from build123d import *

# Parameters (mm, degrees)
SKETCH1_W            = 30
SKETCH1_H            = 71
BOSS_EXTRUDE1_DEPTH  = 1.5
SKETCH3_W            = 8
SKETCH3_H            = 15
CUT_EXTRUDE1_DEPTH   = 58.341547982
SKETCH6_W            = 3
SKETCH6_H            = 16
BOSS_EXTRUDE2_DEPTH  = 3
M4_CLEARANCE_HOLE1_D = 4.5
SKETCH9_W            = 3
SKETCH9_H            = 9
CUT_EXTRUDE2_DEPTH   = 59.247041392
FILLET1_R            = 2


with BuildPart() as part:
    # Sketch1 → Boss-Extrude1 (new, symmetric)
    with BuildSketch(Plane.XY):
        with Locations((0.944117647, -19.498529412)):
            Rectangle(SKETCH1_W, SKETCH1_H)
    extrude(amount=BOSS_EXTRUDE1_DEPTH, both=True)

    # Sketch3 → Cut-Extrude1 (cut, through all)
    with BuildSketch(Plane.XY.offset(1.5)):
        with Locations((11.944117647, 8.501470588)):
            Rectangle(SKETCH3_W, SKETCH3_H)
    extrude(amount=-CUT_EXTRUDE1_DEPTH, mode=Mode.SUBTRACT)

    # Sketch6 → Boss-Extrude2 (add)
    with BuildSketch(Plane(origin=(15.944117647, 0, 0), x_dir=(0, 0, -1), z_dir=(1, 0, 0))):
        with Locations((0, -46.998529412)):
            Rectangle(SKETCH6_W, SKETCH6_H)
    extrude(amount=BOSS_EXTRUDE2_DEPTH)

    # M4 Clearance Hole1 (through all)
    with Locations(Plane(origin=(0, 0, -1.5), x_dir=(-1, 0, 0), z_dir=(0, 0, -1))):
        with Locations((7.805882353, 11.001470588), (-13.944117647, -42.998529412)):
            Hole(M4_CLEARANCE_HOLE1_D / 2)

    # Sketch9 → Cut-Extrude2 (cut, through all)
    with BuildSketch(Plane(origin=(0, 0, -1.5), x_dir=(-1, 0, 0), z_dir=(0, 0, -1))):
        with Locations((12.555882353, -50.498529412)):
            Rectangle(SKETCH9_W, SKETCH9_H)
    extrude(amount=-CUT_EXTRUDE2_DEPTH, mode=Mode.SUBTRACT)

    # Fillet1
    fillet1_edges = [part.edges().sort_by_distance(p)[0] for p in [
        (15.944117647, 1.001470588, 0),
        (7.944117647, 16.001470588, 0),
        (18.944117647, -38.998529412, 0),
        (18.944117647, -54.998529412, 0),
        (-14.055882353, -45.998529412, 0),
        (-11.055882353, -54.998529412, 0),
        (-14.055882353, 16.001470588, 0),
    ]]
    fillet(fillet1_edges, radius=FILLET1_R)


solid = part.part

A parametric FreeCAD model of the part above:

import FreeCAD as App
import Part
import Sketcher
Q = App.Units.Quantity


def edges_at(feature, points):
    """Names of the edges that pass closest to the given points."""
    edges = feature.Shape.Edges
    near = lambda p: min(range(len(edges)), key=lambda i: edges[i].distToShape(Part.Vertex(*p))[0])
    return sorted({f"Edge{near(p) + 1}" for p in points})

doc = App.newDocument("Part")
body = doc.addObject("PartDesign::Body", "Body")

# Sketch on XY plane
sketch1 = doc.addObject("Sketcher::SketchObject", "Sketch")
body.addObject(sketch1)
sketch1.AttachmentSupport = (doc.XY_Plane, [""])
sketch1.MapMode = "FlatFace"
sketch1.addGeometry(Part.LineSegment(App.Vector(-14.055882, 16.001471, 0), App.Vector(-14.055882, -54.998529, 0)), False)
sketch1.addGeometry(Part.LineSegment(App.Vector(-14.055882, -54.998529, 0), App.Vector(15.944118, -54.998529, 0)), False)
sketch1.addGeometry(Part.LineSegment(App.Vector(15.944118, -54.998529, 0), App.Vector(15.944118, 16.001471, 0)), False)
sketch1.addGeometry(Part.LineSegment(App.Vector(15.944118, 16.001471, 0), App.Vector(-14.055882, 16.001471, 0)), False)
sketch1.addConstraint(Sketcher.Constraint("Coincident", 0, 2, 1, 1))
sketch1.addConstraint(Sketcher.Constraint("Coincident", 1, 2, 2, 1))
sketch1.addConstraint(Sketcher.Constraint("Coincident", 2, 2, 3, 1))
sketch1.addConstraint(Sketcher.Constraint("Coincident", 3, 2, 0, 1))
sketch1.addConstraint(Sketcher.Constraint("Vertical", 0))
sketch1.addConstraint(Sketcher.Constraint("Horizontal", 1))
sketch1.addConstraint(Sketcher.Constraint("Vertical", 2))
sketch1.addConstraint(Sketcher.Constraint("Horizontal", 3))
sketch1.addConstraint(Sketcher.Constraint("DistanceX", 1, 1, 1, 2, Q("30 mm")))
sketch1.addConstraint(Sketcher.Constraint("DistanceY", 0, 2, 0, 1, Q("71 mm")))
sketch1.addConstraint(Sketcher.Constraint("DistanceY", 0, 2, -1, 1, Q("54.998529 mm")))
sketch1.addConstraint(Sketcher.Constraint("DistanceX", 0, 2, -1, 1, Q("14.055882 mm")))
pad1 = doc.addObject("PartDesign::Pad", "Pad")
body.addObject(pad1)
pad1.Profile = sketch1
pad1.Length = 3
pad1.Midplane = True

# Sketch on XY plane
sketch2 = doc.addObject("Sketcher::SketchObject", "Sketch001")
body.addObject(sketch2)
sketch2.AttachmentSupport = (doc.XY_Plane, [""])
sketch2.MapMode = "FlatFace"
sketch2.AttachmentOffset = App.Placement(App.Vector(0, 0, 1.5), App.Rotation())
sketch2.addGeometry(Part.LineSegment(App.Vector(7.944118, 16.001471, 0), App.Vector(7.944118, 1.001471, 0)), False)
sketch2.addGeometry(Part.LineSegment(App.Vector(7.944118, 1.001471, 0), App.Vector(15.944118, 1.001471, 0)), False)
sketch2.addGeometry(Part.LineSegment(App.Vector(15.944118, 1.001471, 0), App.Vector(15.944118, 16.001471, 0)), False)
sketch2.addGeometry(Part.LineSegment(App.Vector(15.944118, 16.001471, 0), App.Vector(7.944118, 16.001471, 0)), False)
sketch2.addConstraint(Sketcher.Constraint("Coincident", 0, 2, 1, 1))
sketch2.addConstraint(Sketcher.Constraint("Coincident", 1, 2, 2, 1))
sketch2.addConstraint(Sketcher.Constraint("Coincident", 2, 2, 3, 1))
sketch2.addConstraint(Sketcher.Constraint("Coincident", 3, 2, 0, 1))
sketch2.addConstraint(Sketcher.Constraint("Vertical", 0))
sketch2.addConstraint(Sketcher.Constraint("Horizontal", 1))
sketch2.addConstraint(Sketcher.Constraint("Vertical", 2))
sketch2.addConstraint(Sketcher.Constraint("Horizontal", 3))
sketch2.addConstraint(Sketcher.Constraint("DistanceX", 1, 1, 1, 2, Q("8 mm")))
sketch2.addConstraint(Sketcher.Constraint("DistanceY", 0, 2, 0, 1, Q("15 mm")))
sketch2.addConstraint(Sketcher.Constraint("DistanceY", -1, 1, 0, 2, Q("1.001471 mm")))
sketch2.addConstraint(Sketcher.Constraint("DistanceX", -1, 1, 0, 2, Q("7.944118 mm")))
pocket1 = doc.addObject("PartDesign::Pocket", "Pocket")
body.addObject(pocket1)
pocket1.Profile = sketch2
pocket1.Type = "ThroughAll"

# Sketch on YZ plane
sketch3 = doc.addObject("Sketcher::SketchObject", "Sketch002")
body.addObject(sketch3)
sketch3.AttachmentSupport = (doc.YZ_Plane, [""])
sketch3.MapMode = "FlatFace"
sketch3.AttachmentOffset = App.Placement(App.Vector(0, 0, 15.944118), App.Rotation())
sketch3.addGeometry(Part.LineSegment(App.Vector(-38.998529, 1.5, 0), App.Vector(-54.998529, 1.5, 0)), False)
sketch3.addGeometry(Part.LineSegment(App.Vector(-54.998529, 1.5, 0), App.Vector(-54.998529, -1.5, 0)), False)
sketch3.addGeometry(Part.LineSegment(App.Vector(-54.998529, -1.5, 0), App.Vector(-38.998529, -1.5, 0)), False)
sketch3.addGeometry(Part.LineSegment(App.Vector(-38.998529, -1.5, 0), App.Vector(-38.998529, 1.5, 0)), False)
sketch3.addConstraint(Sketcher.Constraint("Coincident", 0, 2, 1, 1))
sketch3.addConstraint(Sketcher.Constraint("Coincident", 1, 2, 2, 1))
sketch3.addConstraint(Sketcher.Constraint("Coincident", 2, 2, 3, 1))
sketch3.addConstraint(Sketcher.Constraint("Coincident", 3, 2, 0, 1))
sketch3.addConstraint(Sketcher.Constraint("Horizontal", 0))
sketch3.addConstraint(Sketcher.Constraint("Vertical", 1))
sketch3.addConstraint(Sketcher.Constraint("Horizontal", 2))
sketch3.addConstraint(Sketcher.Constraint("Vertical", 3))
sketch3.addConstraint(Sketcher.Constraint("DistanceX", 0, 2, 0, 1, Q("16 mm")))
sketch3.addConstraint(Sketcher.Constraint("DistanceY", 1, 2, 1, 1, Q("3 mm")))
sketch3.addConstraint(Sketcher.Constraint("DistanceY", -1, 1, 0, 2, Q("1.5 mm")))
sketch3.addConstraint(Sketcher.Constraint("DistanceX", 0, 2, -1, 1, Q("54.998529 mm")))
pad2 = doc.addObject("PartDesign::Pad", "Pad001")
body.addObject(pad2)
pad2.Profile = sketch3
pad2.Length = 3

# Sketch on XY plane
sketch4 = doc.addObject("Sketcher::SketchObject", "Sketch003")
body.addObject(sketch4)
sketch4.AttachmentSupport = (doc.XY_Plane, [""])
sketch4.MapMode = "FlatFace"
sketch4.AttachmentOffset = App.Placement(App.Vector(0, 0, -1.5), App.Rotation())
sketch4.addGeometry(Part.Circle(App.Vector(-7.805882, 11.001471, 0), App.Vector(0, 0, 1), 2.25), False)
sketch4.addGeometry(Part.Circle(App.Vector(13.944118, -42.998529, 0), App.Vector(0, 0, 1), 2.25), False)
sketch4.addConstraint(Sketcher.Constraint("Equal", 0, 1))
sketch4.addConstraint(Sketcher.Constraint("Diameter", 0, Q("4.5 mm")))
sketch4.addConstraint(Sketcher.Constraint("DistanceY", 1, 3, 0, 3, Q("54 mm")))
sketch4.addConstraint(Sketcher.Constraint("DistanceX", 0, 3, 1, 3, Q("21.75 mm")))
sketch4.addConstraint(Sketcher.Constraint("DistanceY", -1, 1, 0, 3, Q("11.001471 mm")))
sketch4.addConstraint(Sketcher.Constraint("DistanceX", 0, 3, -1, 1, Q("7.805882 mm")))
doc.recompute()
hole = doc.addObject("PartDesign::Hole", "Hole")
body.addObject(hole)
hole.Profile = sketch4
hole.ThreadType = "None"
hole.Diameter = 4.5
hole.DepthType = "ThroughAll"
hole.Reversed = True

# Sketch on XY plane
sketch5 = doc.addObject("Sketcher::SketchObject", "Sketch004")
body.addObject(sketch5)
sketch5.AttachmentSupport = (doc.XY_Plane, [""])
sketch5.MapMode = "FlatFace"
sketch5.AttachmentOffset = App.Placement(App.Vector(0, 0, -1.5), App.Rotation())
sketch5.addGeometry(Part.LineSegment(App.Vector(-11.055882, -45.998529, 0), App.Vector(-11.055882, -54.998529, 0)), False)
sketch5.addGeometry(Part.LineSegment(App.Vector(-11.055882, -54.998529, 0), App.Vector(-14.055882, -54.998529, 0)), False)
sketch5.addGeometry(Part.LineSegment(App.Vector(-14.055882, -54.998529, 0), App.Vector(-14.055882, -45.998529, 0)), False)
sketch5.addGeometry(Part.LineSegment(App.Vector(-14.055882, -45.998529, 0), App.Vector(-11.055882, -45.998529, 0)), False)
sketch5.addConstraint(Sketcher.Constraint("Coincident", 0, 2, 1, 1))
sketch5.addConstraint(Sketcher.Constraint("Coincident", 1, 2, 2, 1))
sketch5.addConstraint(Sketcher.Constraint("Coincident", 2, 2, 3, 1))
sketch5.addConstraint(Sketcher.Constraint("Coincident", 3, 2, 0, 1))
sketch5.addConstraint(Sketcher.Constraint("Vertical", 0))
sketch5.addConstraint(Sketcher.Constraint("Horizontal", 1))
sketch5.addConstraint(Sketcher.Constraint("Vertical", 2))
sketch5.addConstraint(Sketcher.Constraint("Horizontal", 3))
sketch5.addConstraint(Sketcher.Constraint("DistanceX", 1, 2, 1, 1, Q("3 mm")))
sketch5.addConstraint(Sketcher.Constraint("DistanceY", 0, 2, 0, 1, Q("9 mm")))
sketch5.addConstraint(Sketcher.Constraint("DistanceY", 0, 2, -1, 1, Q("54.998529 mm")))
sketch5.addConstraint(Sketcher.Constraint("DistanceX", 0, 2, -1, 1, Q("11.055882 mm")))
pocket2 = doc.addObject("PartDesign::Pocket", "Pocket001")
body.addObject(pocket2)
pocket2.Profile = sketch5
pocket2.Type = "ThroughAll"
pocket2.Reversed = True
doc.recompute()

fillet = doc.addObject("PartDesign::Fillet", "Fillet")
body.addObject(fillet)
fillet.Base = (pocket2, edges_at(pocket2, [
    (15.944, 1.001, 0),
    (7.944, 16.001, 0),
    (18.944, -38.999, 0),
    (18.944, -54.999, 0),
    (-14.056, -45.999, 0),
    (-11.056, -54.999, 0),
    (-14.056, 16.001, 0),
]))
fillet.Radius = 2

doc.recompute()
